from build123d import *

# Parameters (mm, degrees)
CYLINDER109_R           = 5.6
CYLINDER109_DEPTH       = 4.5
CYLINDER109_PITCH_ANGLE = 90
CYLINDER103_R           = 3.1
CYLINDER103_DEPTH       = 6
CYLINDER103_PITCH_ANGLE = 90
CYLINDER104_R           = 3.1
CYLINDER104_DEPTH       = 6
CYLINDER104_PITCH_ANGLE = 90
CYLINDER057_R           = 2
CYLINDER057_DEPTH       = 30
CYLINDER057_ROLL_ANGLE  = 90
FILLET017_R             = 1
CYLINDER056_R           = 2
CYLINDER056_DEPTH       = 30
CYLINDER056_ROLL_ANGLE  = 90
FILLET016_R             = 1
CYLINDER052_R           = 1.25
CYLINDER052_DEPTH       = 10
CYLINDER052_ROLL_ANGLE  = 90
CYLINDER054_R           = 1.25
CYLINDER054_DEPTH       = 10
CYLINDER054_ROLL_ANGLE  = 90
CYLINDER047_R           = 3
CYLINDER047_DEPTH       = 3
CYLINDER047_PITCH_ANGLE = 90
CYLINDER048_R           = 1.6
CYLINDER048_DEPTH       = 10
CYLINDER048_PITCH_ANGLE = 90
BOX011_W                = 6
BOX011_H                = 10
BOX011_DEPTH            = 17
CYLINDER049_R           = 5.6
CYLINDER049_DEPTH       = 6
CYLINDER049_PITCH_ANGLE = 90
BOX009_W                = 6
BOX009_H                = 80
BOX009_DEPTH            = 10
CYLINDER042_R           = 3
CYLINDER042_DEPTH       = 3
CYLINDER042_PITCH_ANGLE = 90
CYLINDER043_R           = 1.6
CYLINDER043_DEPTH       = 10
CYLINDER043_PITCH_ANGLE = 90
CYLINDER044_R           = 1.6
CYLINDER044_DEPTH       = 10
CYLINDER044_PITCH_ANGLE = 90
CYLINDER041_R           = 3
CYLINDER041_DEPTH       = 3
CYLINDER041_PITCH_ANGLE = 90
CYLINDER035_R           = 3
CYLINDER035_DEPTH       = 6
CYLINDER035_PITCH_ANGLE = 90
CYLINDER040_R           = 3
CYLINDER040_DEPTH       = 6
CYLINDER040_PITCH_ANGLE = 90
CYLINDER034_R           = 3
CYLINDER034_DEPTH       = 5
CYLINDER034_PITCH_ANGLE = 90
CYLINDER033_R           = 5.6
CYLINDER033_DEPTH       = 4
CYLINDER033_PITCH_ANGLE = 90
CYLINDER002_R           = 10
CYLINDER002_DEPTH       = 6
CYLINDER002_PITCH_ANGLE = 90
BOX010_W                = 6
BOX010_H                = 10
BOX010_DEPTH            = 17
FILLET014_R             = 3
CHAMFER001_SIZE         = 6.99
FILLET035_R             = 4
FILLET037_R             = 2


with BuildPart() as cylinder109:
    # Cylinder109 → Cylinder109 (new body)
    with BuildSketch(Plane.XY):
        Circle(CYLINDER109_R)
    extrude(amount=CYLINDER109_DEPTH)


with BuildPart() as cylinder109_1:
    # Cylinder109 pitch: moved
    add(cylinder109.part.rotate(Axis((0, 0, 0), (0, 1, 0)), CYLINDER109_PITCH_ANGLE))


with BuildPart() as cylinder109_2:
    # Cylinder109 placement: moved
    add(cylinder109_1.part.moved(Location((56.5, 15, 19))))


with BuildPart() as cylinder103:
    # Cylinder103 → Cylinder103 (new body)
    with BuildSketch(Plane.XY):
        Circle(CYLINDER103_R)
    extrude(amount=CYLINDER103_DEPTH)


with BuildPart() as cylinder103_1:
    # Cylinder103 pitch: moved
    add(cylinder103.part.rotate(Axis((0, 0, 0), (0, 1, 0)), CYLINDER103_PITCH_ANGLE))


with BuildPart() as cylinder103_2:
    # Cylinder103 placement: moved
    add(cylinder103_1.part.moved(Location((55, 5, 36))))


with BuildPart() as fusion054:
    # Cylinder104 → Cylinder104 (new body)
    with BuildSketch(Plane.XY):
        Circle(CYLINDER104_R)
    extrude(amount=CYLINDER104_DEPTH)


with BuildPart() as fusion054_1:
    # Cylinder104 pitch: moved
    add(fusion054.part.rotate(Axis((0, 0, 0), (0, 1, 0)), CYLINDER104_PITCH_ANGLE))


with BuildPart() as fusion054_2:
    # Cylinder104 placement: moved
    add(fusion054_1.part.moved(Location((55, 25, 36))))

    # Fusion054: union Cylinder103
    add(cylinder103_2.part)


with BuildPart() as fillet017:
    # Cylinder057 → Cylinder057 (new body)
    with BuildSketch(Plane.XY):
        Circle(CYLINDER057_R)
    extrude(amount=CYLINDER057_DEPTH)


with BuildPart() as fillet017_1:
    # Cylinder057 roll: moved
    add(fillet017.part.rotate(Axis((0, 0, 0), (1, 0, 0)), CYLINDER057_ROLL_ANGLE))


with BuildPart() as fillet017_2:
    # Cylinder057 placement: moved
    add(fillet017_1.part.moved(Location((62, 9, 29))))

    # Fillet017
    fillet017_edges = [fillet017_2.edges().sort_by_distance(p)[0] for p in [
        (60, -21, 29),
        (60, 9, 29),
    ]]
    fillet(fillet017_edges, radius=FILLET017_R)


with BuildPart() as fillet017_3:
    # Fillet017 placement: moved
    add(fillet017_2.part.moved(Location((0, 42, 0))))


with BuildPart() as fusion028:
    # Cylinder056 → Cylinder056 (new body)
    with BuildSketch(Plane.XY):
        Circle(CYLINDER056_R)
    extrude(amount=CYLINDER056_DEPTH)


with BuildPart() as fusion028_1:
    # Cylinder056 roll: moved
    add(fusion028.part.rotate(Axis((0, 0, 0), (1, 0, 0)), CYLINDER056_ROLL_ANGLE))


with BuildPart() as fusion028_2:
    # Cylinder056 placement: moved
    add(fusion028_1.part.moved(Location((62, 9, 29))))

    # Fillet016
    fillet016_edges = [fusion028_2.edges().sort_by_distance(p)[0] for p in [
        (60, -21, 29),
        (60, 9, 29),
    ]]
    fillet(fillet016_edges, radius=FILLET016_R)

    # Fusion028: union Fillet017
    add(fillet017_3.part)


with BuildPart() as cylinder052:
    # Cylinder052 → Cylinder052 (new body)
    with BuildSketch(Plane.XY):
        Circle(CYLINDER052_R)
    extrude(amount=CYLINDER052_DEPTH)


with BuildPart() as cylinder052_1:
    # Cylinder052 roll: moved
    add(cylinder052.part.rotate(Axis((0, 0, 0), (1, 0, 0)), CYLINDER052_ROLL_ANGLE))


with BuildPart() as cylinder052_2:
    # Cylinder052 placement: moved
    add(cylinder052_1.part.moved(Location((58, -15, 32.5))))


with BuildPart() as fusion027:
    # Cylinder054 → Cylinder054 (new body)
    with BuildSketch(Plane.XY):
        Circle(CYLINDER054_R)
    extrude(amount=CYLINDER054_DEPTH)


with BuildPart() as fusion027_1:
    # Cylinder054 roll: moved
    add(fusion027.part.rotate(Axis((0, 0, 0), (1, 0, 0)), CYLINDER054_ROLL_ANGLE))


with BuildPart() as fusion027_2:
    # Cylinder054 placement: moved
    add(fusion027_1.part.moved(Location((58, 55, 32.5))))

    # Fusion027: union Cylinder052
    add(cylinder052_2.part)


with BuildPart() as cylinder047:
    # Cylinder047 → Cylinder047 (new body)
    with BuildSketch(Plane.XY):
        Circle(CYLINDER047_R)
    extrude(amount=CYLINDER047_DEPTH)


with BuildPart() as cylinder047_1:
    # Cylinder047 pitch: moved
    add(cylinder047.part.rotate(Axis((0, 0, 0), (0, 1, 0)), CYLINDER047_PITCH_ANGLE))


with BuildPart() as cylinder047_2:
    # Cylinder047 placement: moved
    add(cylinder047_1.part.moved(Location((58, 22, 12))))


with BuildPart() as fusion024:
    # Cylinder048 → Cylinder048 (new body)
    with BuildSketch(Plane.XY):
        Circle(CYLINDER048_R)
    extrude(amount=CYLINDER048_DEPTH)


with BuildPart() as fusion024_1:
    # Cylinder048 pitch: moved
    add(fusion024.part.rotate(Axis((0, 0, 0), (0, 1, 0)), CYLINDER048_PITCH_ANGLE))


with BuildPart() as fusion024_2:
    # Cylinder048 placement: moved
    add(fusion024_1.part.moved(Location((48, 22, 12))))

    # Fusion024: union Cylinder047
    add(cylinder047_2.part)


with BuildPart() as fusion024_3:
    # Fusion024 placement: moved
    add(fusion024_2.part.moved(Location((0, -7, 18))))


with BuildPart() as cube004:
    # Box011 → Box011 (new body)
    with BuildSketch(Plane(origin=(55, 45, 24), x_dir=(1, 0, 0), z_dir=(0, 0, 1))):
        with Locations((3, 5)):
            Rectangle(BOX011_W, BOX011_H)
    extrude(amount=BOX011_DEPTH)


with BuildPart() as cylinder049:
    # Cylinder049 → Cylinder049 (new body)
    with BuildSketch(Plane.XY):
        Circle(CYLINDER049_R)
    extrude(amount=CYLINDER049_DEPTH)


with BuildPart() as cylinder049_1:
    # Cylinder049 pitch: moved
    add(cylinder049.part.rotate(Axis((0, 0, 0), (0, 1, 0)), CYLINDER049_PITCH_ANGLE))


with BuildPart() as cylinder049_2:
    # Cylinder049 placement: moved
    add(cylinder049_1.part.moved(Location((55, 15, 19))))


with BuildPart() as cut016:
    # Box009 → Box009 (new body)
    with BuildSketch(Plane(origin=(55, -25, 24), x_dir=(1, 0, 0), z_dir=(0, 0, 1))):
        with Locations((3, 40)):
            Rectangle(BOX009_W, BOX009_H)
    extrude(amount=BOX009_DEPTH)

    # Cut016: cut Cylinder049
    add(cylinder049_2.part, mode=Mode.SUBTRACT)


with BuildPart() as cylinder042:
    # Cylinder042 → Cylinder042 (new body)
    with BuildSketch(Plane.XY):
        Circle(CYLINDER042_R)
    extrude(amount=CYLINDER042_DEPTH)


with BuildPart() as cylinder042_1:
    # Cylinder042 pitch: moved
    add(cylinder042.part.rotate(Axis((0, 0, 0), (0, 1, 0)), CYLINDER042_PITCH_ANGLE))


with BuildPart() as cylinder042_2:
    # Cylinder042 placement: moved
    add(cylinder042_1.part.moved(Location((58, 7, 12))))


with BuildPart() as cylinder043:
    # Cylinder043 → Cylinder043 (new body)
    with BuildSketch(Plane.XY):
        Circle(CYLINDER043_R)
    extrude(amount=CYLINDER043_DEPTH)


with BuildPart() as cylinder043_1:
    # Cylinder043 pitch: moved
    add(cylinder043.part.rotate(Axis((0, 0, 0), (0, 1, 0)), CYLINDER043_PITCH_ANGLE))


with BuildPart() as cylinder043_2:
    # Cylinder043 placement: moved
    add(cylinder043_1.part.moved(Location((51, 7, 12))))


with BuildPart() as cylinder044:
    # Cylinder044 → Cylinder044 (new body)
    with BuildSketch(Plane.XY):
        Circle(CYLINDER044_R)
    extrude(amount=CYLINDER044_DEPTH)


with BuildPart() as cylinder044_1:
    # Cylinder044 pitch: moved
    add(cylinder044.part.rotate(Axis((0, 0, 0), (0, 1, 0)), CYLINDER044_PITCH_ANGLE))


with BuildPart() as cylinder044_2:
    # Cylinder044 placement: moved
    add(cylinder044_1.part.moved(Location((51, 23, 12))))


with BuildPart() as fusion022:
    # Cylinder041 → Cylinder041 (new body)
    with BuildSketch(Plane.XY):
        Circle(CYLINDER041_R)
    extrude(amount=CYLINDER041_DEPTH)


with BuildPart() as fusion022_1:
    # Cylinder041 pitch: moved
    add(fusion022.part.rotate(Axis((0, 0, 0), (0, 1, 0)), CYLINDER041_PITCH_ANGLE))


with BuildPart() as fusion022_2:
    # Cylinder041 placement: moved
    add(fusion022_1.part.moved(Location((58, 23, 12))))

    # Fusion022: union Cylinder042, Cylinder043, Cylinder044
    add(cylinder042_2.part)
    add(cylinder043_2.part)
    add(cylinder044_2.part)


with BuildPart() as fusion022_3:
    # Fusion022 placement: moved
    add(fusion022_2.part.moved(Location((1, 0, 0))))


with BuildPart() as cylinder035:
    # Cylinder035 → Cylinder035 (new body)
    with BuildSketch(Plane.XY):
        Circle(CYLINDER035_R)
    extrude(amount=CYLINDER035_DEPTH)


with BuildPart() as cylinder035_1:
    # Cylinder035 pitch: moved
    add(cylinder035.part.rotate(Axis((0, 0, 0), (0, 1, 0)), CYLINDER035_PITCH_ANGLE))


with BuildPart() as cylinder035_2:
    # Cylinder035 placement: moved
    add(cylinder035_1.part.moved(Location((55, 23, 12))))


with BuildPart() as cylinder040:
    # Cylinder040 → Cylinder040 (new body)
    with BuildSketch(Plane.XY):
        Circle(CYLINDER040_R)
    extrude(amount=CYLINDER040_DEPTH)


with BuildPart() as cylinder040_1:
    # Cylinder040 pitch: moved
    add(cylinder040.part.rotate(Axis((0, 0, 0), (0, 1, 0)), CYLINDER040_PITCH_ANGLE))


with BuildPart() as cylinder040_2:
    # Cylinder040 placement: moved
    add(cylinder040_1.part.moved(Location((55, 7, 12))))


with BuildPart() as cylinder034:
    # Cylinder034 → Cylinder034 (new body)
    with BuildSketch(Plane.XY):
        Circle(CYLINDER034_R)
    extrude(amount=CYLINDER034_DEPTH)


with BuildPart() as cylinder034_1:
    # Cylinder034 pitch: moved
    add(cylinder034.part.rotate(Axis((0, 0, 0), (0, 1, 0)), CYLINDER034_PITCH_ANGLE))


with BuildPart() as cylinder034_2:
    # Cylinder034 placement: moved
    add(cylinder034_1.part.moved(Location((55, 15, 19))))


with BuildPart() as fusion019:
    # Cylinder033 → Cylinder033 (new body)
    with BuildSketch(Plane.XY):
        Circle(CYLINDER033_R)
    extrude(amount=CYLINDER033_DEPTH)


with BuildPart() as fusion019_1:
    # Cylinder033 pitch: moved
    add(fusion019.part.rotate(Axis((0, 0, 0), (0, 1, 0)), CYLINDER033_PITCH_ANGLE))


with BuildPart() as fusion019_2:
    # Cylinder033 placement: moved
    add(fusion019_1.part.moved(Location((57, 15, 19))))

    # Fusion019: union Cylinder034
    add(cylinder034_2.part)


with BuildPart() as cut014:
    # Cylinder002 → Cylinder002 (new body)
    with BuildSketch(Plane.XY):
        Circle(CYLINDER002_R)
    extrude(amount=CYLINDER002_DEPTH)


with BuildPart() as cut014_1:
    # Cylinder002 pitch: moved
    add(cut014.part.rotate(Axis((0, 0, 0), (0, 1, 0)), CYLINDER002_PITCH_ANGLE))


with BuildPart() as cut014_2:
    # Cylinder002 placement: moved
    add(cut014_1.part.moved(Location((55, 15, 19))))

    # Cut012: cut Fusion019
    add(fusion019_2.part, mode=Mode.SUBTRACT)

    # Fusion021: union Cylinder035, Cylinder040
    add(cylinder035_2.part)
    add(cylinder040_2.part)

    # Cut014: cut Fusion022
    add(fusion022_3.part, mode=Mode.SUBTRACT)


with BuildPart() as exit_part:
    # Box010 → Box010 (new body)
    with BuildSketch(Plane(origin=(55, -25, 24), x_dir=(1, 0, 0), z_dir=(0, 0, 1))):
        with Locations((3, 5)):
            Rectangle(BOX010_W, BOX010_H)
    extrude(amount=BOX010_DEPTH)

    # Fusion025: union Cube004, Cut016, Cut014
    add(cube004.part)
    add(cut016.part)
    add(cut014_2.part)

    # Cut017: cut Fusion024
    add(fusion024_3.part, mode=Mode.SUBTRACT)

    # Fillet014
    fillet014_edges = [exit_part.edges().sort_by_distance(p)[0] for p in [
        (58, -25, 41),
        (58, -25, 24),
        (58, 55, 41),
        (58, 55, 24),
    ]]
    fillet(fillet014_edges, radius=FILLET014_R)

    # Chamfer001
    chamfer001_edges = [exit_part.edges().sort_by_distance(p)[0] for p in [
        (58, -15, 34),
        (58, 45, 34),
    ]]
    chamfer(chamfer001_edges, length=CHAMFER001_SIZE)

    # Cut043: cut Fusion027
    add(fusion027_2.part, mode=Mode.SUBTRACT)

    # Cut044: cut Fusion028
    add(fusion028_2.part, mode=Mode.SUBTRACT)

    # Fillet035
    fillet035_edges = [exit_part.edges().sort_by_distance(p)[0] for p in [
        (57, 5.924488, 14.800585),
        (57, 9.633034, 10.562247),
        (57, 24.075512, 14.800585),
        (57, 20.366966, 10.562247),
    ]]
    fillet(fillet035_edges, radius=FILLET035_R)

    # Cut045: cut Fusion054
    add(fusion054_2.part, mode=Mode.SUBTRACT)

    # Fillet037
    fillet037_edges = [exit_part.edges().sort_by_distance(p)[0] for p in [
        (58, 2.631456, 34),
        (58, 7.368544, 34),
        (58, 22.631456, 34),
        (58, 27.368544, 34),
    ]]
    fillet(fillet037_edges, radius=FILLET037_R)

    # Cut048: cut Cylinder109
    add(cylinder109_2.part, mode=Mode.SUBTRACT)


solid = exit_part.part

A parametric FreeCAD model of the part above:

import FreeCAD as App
import Part
import Sketcher

V = App.Vector
Q = App.Units.Quantity


def edges_at(feature, points):
    """Names of the edges that pass closest to the given points."""
    edges = feature.Shape.Edges
    near = lambda p: min(range(len(edges)), key=lambda i: edges[i].distToShape(Part.Vertex(*p))[0])
    return sorted({f"Edge{near(p) + 1}" for p in points})


def add_polygon(sketch, points):
    """Adds a closed chain of lines whose ends are joined by coincident constraints."""
    first, n = sketch.GeometryCount, len(points)
    for a, b in zip(points, points[1:] + points[:1]):
        sketch.addGeometry(Part.LineSegment(App.Vector(*a, 0), App.Vector(*b, 0)), False)
    for i in range(n):
        sketch.addConstraint(Sketcher.Constraint("Coincident", first + i, 2, first + (i + 1) % n, 1))

doc = App.newDocument("Part")
body = doc.addObject("PartDesign::Body", "Body")

# Sketch on XY plane
sketch1 = body.newObject("Sketcher::SketchObject", "Sketch")
sketch1.AttachmentSupport = (doc.getObject("XY_Plane"), [""])
sketch1.MapMode = "FlatFace"
sketch1.addGeometry(Part.Circle(V(0, 0, 0), V(0, 0, 1), 6), False)
sketch1.addConstraint(Sketcher.Constraint("Coincident", 0, 3, -1, 1))
sketch1.addConstraint(Sketcher.Constraint("Diameter", 0, Q("11.2 mm")))
pad1 = body.newObject("PartDesign::Pad", "Pad")
pad1.Profile = sketch1
pad1.Length = 4.5
body2 = doc.addObject("PartDesign::Body", "Body001")
doc.recompute()

body.Placement = App.Placement(V(0, 0, 0), App.Rotation(V(0, 1, 0), 90))
boolean = body2.newObject("PartDesign::Boolean", "Boolean")
boolean.Type = "Fuse"
boolean.addObjects([body])
body3 = doc.addObject("PartDesign::Body", "Body002")
doc.recompute()

body2.Placement = App.Placement(V(56.5, 15, 19), App.Rotation(V(0, 0, 1), 0))
boolean2 = body3.newObject("PartDesign::Boolean", "Boolean001")
boolean2.Type = "Fuse"
boolean2.addObjects([body2])
body4 = doc.addObject("PartDesign::Body", "Body003")

# Sketch on XY plane
sketch2 = body4.newObject("Sketcher::SketchObject", "Sketch001")
sketch2.AttachmentSupport = (doc.getObject("XY_Plane003"), [""])
sketch2.MapMode = "FlatFace"
sketch2.addGeometry(Part.Circle(V(0, 0, 0), V(0, 0, 1), 3.1), False)
sketch2.addConstraint(Sketcher.Constraint("Coincident", 0, 3, -1, 1))
sketch2.addConstraint(Sketcher.Constraint("Diameter", 0, Q("6.2 mm")))
pad2 = body4.newObject("PartDesign::Pad", "Pad001")
pad2.Profile = sketch2
pad2.Length = 6
body5 = doc.addObject("PartDesign::Body", "Body004")
doc.recompute()

body4.Placement = App.Placement(V(0, 0, 0), App.Rotation(V(0, 1, 0), 90))
boolean3 = body5.newObject("PartDesign::Boolean", "Boolean002")
boolean3.Type = "Fuse"
boolean3.addObjects([body4])
body6 = doc.addObject("PartDesign::Body", "Body005")
doc.recompute()

body5.Placement = App.Placement(V(55, 5, 36), App.Rotation(V(0, 0, 1), 0))
boolean4 = body6.newObject("PartDesign::Boolean", "Boolean003")
boolean4.Type = "Fuse"
boolean4.addObjects([body5])
body7 = doc.addObject("PartDesign::Body", "Body006")

# Sketch on XY plane
sketch3 = body7.newObject("Sketcher::SketchObject", "Sketch002")
sketch3.AttachmentSupport = (doc.getObject("XY_Plane006"), [""])
sketch3.MapMode = "FlatFace"
sketch3.addGeometry(Part.Circle(V(0, 0, 0), V(0, 0, 1), 3.1), False)
sketch3.addConstraint(Sketcher.Constraint("Coincident", 0, 3, -1, 1))
sketch3.addConstraint(Sketcher.Constraint("Diameter", 0, Q("6.2 mm")))
pad3 = body7.newObject("PartDesign::Pad", "Pad002")
pad3.Profile = sketch3
pad3.Length = 6
body8 = doc.addObject("PartDesign::Body", "Body007")
doc.recompute()

body7.Placement = App.Placement(V(0, 0, 0), App.Rotation(V(0, 1, 0), 90))
boolean5 = body8.newObject("PartDesign::Boolean", "Boolean004")
boolean5.Type = "Fuse"
boolean5.addObjects([body7])
body9 = doc.addObject("PartDesign::Body", "Body008")
body9.AllowCompound = True
doc.recompute()

body8.Placement = App.Placement(V(55, 25, 36), App.Rotation(V(0, 0, 1), 0))
boolean6 = body9.newObject("PartDesign::Boolean", "Boolean005")
boolean6.Type = "Fuse"
boolean6.addObjects([body8])
doc.recompute()

boolean7 = body9.newObject("PartDesign::Boolean", "Boolean006")
boolean7.Type = "Fuse"
boolean7.addObjects([body6])
body10 = doc.addObject("PartDesign::Body", "Body009")

# Sketch on XY plane
sketch4 = body10.newObject("Sketcher::SketchObject", "Sketch003")
sketch4.AttachmentSupport = (doc.getObject("XY_Plane009"), [""])
sketch4.MapMode = "FlatFace"
sketch4.addGeometry(Part.Circle(V(0, 0, 0), V(0, 0, 1), 2), False)
sketch4.addConstraint(Sketcher.Constraint("Coincident", 0, 3, -1, 1))
sketch4.addConstraint(Sketcher.Constraint("Diameter", 0, Q("4 mm")))
pad4 = body10.newObject("PartDesign::Pad", "Pad003")
pad4.Profile = sketch4
pad4.Length = 30
body11 = doc.addObject("PartDesign::Body", "Body010")
doc.recompute()

body10.Placement = App.Placement(V(0, 0, 0), App.Rotation(V(1, 0, 0), 90))
boolean8 = body11.newObject("PartDesign::Boolean", "Boolean007")
boolean8.Type = "Fuse"
boolean8.addObjects([body10])
body12 = doc.addObject("PartDesign::Body", "Body011")
doc.recompute()

body11.Placement = App.Placement(V(62, 9, 29), App.Rotation(V(0, 0, 1), 0))
boolean9 = body12.newObject("PartDesign::Boolean", "Boolean008")
boolean9.Type = "Fuse"
boolean9.addObjects([body11])
doc.recompute()

fillet = body12.newObject("PartDesign::Fillet", "Fillet")
fillet.Base = (boolean9, edges_at(boolean9, [(60, -21, 29), (60, 9, 29)]))
fillet.Radius = 1
body13 = doc.addObject("PartDesign::Body", "Body012")
doc.recompute()

body12.Placement = App.Placement(V(0, 42, 0), App.Rotation(V(0, 0, 1), 0))
boolean10 = body13.newObject("PartDesign::Boolean", "Boolean009")
boolean10.Type = "Fuse"
boolean10.addObjects([body12])
body14 = doc.addObject("PartDesign::Body", "Body013")

# Sketch on XY plane
sketch5 = body14.newObject("Sketcher::SketchObject", "Sketch004")
sketch5.AttachmentSupport = (doc.getObject("XY_Plane013"), [""])
sketch5.MapMode = "FlatFace"
sketch5.addGeometry(Part.Circle(V(0, 0, 0), V(0, 0, 1), 2), False)
sketch5.addConstraint(Sketcher.Constraint("Coincident", 0, 3, -1, 1))
sketch5.addConstraint(Sketcher.Constraint("Diameter", 0, Q("4 mm")))
pad5 = body14.newObject("PartDesign::Pad", "Pad004")
pad5.Profile = sketch5
pad5.Length = 30
body15 = doc.addObject("PartDesign::Body", "Body014")
doc.recompute()

body14.Placement = App.Placement(V(0, 0, 0), App.Rotation(V(1, 0, 0), 90))
boolean11 = body15.newObject("PartDesign::Boolean", "Boolean010")
boolean11.Type = "Fuse"
boolean11.addObjects([body14])
body16 = doc.addObject("PartDesign::Body", "Body015")
body16.AllowCompound = True
doc.recompute()

body15.Placement = App.Placement(V(62, 9, 29), App.Rotation(V(0, 0, 1), 0))
boolean12 = body16.newObject("PartDesign::Boolean", "Boolean011")
boolean12.Type = "Fuse"
boolean12.addObjects([body15])
doc.recompute()

fillet2 = body16.newObject("PartDesign::Fillet", "Fillet001")
fillet2.Base = (boolean12, edges_at(boolean12, [(60, -21, 29), (60, 9, 29)]))
fillet2.Radius = 1
doc.recompute()

boolean13 = body16.newObject("PartDesign::Boolean", "Boolean012")
boolean13.Type = "Fuse"
boolean13.addObjects([body13])
body17 = doc.addObject("PartDesign::Body", "Body016")

# Sketch on XY plane
sketch6 = body17.newObject("Sketcher::SketchObject", "Sketch005")
sketch6.AttachmentSupport = (doc.getObject("XY_Plane016"), [""])
sketch6.MapMode = "FlatFace"
sketch6.addGeometry(Part.Circle(V(0, 0, 0), V(0, 0, 1), 1.2), False)
sketch6.addConstraint(Sketcher.Constraint("Coincident", 0, 3, -1, 1))
sketch6.addConstraint(Sketcher.Constraint("Diameter", 0, Q("2.5 mm")))
pad6 = body17.newObject("PartDesign::Pad", "Pad005")
pad6.Profile = sketch6
pad6.Length = 10
body18 = doc.addObject("PartDesign::Body", "Body017")
doc.recompute()

body17.Placement = App.Placement(V(0, 0, 0), App.Rotation(V(1, 0, 0), 90))
boolean14 = body18.newObject("PartDesign::Boolean", "Boolean013")
boolean14.Type = "Fuse"
boolean14.addObjects([body17])
body19 = doc.addObject("PartDesign::Body", "Body018")
doc.recompute()

body18.Placement = App.Placement(V(58, -15, 32.5), App.Rotation(V(0, 0, 1), 0))
boolean15 = body19.newObject("PartDesign::Boolean", "Boolean014")
boolean15.Type = "Fuse"
boolean15.addObjects([body18])
body20 = doc.addObject("PartDesign::Body", "Body019")

# Sketch on XY plane
sketch7 = body20.newObject("Sketcher::SketchObject", "Sketch006")
sketch7.AttachmentSupport = (doc.getObject("XY_Plane019"), [""])
sketch7.MapMode = "FlatFace"
sketch7.addGeometry(Part.Circle(V(0, 0, 0), V(0, 0, 1), 1.2), False)
sketch7.addConstraint(Sketcher.Constraint("Coincident", 0, 3, -1, 1))
sketch7.addConstraint(Sketcher.Constraint("Diameter", 0, Q("2.5 mm")))
pad7 = body20.newObject("PartDesign::Pad", "Pad006")
pad7.Profile = sketch7
pad7.Length = 10
body21 = doc.addObject("PartDesign::Body", "Body020")
doc.recompute()

body20.Placement = App.Placement(V(0, 0, 0), App.Rotation(V(1, 0, 0), 90))
boolean16 = body21.newObject("PartDesign::Boolean", "Boolean015")
boolean16.Type = "Fuse"
boolean16.addObjects([body20])
body22 = doc.addObject("PartDesign::Body", "Body021")
body22.AllowCompound = True
doc.recompute()

body21.Placement = App.Placement(V(58, 55, 32.5), App.Rotation(V(0, 0, 1), 0))
boolean17 = body22.newObject("PartDesign::Boolean", "Boolean016")
boolean17.Type = "Fuse"
boolean17.addObjects([body21])
doc.recompute()

boolean18 = body22.newObject("PartDesign::Boolean", "Boolean017")
boolean18.Type = "Fuse"
boolean18.addObjects([body19])
body23 = doc.addObject("PartDesign::Body", "Body022")

# Sketch on XY plane
sketch8 = body23.newObject("Sketcher::SketchObject", "Sketch007")
sketch8.AttachmentSupport = (doc.getObject("XY_Plane022"), [""])
sketch8.MapMode = "FlatFace"
sketch8.addGeometry(Part.Circle(V(0, 0, 0), V(0, 0, 1), 3), False)
sketch8.addConstraint(Sketcher.Constraint("Coincident", 0, 3, -1, 1))
sketch8.addConstraint(Sketcher.Constraint("Diameter", 0, Q("6 mm")))
pad8 = body23.newObject("PartDesign::Pad", "Pad007")
pad8.Profile = sketch8
pad8.Length = 3
body24 = doc.addObject("PartDesign::Body", "Body023")
doc.recompute()

body23.Placement = App.Placement(V(0, 0, 0), App.Rotation(V(0, 1, 0), 90))
boolean19 = body24.newObject("PartDesign::Boolean", "Boolean018")
boolean19.Type = "Fuse"
boolean19.addObjects([body23])
body25 = doc.addObject("PartDesign::Body", "Body024")
doc.recompute()

body24.Placement = App.Placement(V(58, 22, 12), App.Rotation(V(0, 0, 1), 0))
boolean20 = body25.newObject("PartDesign::Boolean", "Boolean019")
boolean20.Type = "Fuse"
boolean20.addObjects([body24])
body26 = doc.addObject("PartDesign::Body", "Body025")

# Sketch on XY plane
sketch9 = body26.newObject("Sketcher::SketchObject", "Sketch008")
sketch9.AttachmentSupport = (doc.getObject("XY_Plane025"), [""])
sketch9.MapMode = "FlatFace"
sketch9.addGeometry(Part.Circle(V(0, 0, 0), V(0, 0, 1), 1.6), False)
sketch9.addConstraint(Sketcher.Constraint("Coincident", 0, 3, -1, 1))
sketch9.addConstraint(Sketcher.Constraint("Diameter", 0, Q("3.2 mm")))
pad9 = body26.newObject("PartDesign::Pad", "Pad008")
pad9.Profile = sketch9
pad9.Length = 10
body27 = doc.addObject("PartDesign::Body", "Body026")
doc.recompute()

body26.Placement = App.Placement(V(0, 0, 0), App.Rotation(V(0, 1, 0), 90))
boolean21 = body27.newObject("PartDesign::Boolean", "Boolean020")
boolean21.Type = "Fuse"
boolean21.addObjects([body26])
body28 = doc.addObject("PartDesign::Body", "Body027")
doc.recompute()

body27.Placement = App.Placement(V(48, 22, 12), App.Rotation(V(0, 0, 1), 0))
boolean22 = body28.newObject("PartDesign::Boolean", "Boolean021")
boolean22.Type = "Fuse"
boolean22.addObjects([body27])
doc.recompute()

boolean23 = body28.newObject("PartDesign::Boolean", "Boolean022")
boolean23.Type = "Fuse"
boolean23.addObjects([body25])
body29 = doc.addObject("PartDesign::Body", "Body028")
doc.recompute()

body28.Placement = App.Placement(V(0, -7, 18), App.Rotation(V(0, 0, 1), 0))
boolean24 = body29.newObject("PartDesign::Boolean", "Boolean023")
boolean24.Type = "Fuse"
boolean24.addObjects([body28])
body30 = doc.addObject("PartDesign::Body", "Body029")

# Sketch on XY plane
sketch10 = body30.newObject("Sketcher::SketchObject", "Sketch009")
sketch10.AttachmentSupport = (doc.getObject("XY_Plane029"), [""])
sketch10.MapMode = "FlatFace"
sketch10.AttachmentOffset = App.Placement(V(0, 0, 24), App.Rotation())
add_polygon(sketch10, [(55, 55), (55, 45), (61, 45), (61, 55)])  # lines 0-3
sketch10.addConstraint(Sketcher.Constraint("Vertical", 0))
sketch10.addConstraint(Sketcher.Constraint("Horizontal", 1))
sketch10.addConstraint(Sketcher.Constraint("Vertical", 2))
sketch10.addConstraint(Sketcher.Constraint("Horizontal", 3))
sketch10.addConstraint(Sketcher.Constraint("DistanceX", 1, 1, 1, 2, Q("6 mm")))
sketch10.addConstraint(Sketcher.Constraint("DistanceY", 0, 2, 0, 1, Q("10 mm")))
sketch10.addConstraint(Sketcher.Constraint("DistanceX", -1, 1, 0, 2, Q("55 mm")))
sketch10.addConstraint(Sketcher.Constraint("DistanceY", -1, 1, 0, 2, Q("45 mm")))
pad10 = body30.newObject("PartDesign::Pad", "Pad009")
pad10.Profile = sketch10
pad10.Length = 17
body31 = doc.addObject("PartDesign::Body", "Body030")

# Sketch on XY plane
sketch11 = body31.newObject("Sketcher::SketchObject", "Sketch010")
sketch11.AttachmentSupport = (doc.getObject("XY_Plane030"), [""])
sketch11.MapMode = "FlatFace"
sketch11.addGeometry(Part.Circle(V(0, 0, 0), V(0, 0, 1), 6), False)
sketch11.addConstraint(Sketcher.Constraint("Coincident", 0, 3, -1, 1))
sketch11.addConstraint(Sketcher.Constraint("Diameter", 0, Q("11.2 mm")))
pad11 = body31.newObject("PartDesign::Pad", "Pad010")
pad11.Profile = sketch11
pad11.Length = 6
body32 = doc.addObject("PartDesign::Body", "Body031")
doc.recompute()

body31.Placement = App.Placement(V(0, 0, 0), App.Rotation(V(0, 1, 0), 90))
boolean25 = body32.newObject("PartDesign::Boolean", "Boolean024")
boolean25.Type = "Fuse"
boolean25.addObjects([body31])
body33 = doc.addObject("PartDesign::Body", "Body032")
doc.recompute()

body32.Placement = App.Placement(V(55, 15, 19), App.Rotation(V(0, 0, 1), 0))
boolean26 = body33.newObject("PartDesign::Boolean", "Boolean025")
boolean26.Type = "Fuse"
boolean26.addObjects([body32])
body34 = doc.addObject("PartDesign::Body", "Body033")

# Sketch on XY plane
sketch12 = body34.newObject("Sketcher::SketchObject", "Sketch011")
sketch12.AttachmentSupport = (doc.getObject("XY_Plane033"), [""])
sketch12.MapMode = "FlatFace"
sketch12.AttachmentOffset = App.Placement(V(0, 0, 24), App.Rotation())
add_polygon(sketch12, [(55, 55), (55, -25), (61, -25), (61, 55)])  # lines 0-3
sketch12.addConstraint(Sketcher.Constraint("Vertical", 0))
sketch12.addConstraint(Sketcher.Constraint("Horizontal", 1))
sketch12.addConstraint(Sketcher.Constraint("Vertical", 2))
sketch12.addConstraint(Sketcher.Constraint("Horizontal", 3))
sketch12.addConstraint(Sketcher.Constraint("DistanceX", 1, 1, 1, 2, Q("6 mm")))
sketch12.addConstraint(Sketcher.Constraint("DistanceY", 0, 2, 0, 1, Q("80 mm")))
sketch12.addConstraint(Sketcher.Constraint("DistanceX", -1, 1, 0, 2, Q("55 mm")))
sketch12.addConstraint(Sketcher.Constraint("DistanceY", 0, 2, -1, 1, Q("25 mm")))
pad12 = body34.newObject("PartDesign::Pad", "Pad011")
pad12.Profile = sketch12
pad12.Length = 10
doc.recompute()

boolean27 = body34.newObject("PartDesign::Boolean", "Boolean026")
boolean27.Type = "Cut"
boolean27.addObjects([body33])
body35 = doc.addObject("PartDesign::Body", "Body034")

# Sketch on XY plane
sketch13 = body35.newObject("Sketcher::SketchObject", "Sketch012")
sketch13.AttachmentSupport = (doc.getObject("XY_Plane034"), [""])
sketch13.MapMode = "FlatFace"
sketch13.addGeometry(Part.Circle(V(0, 0, 0), V(0, 0, 1), 3), False)
sketch13.addConstraint(Sketcher.Constraint("Coincident", 0, 3, -1, 1))
sketch13.addConstraint(Sketcher.Constraint("Diameter", 0, Q("6 mm")))
pad13 = body35.newObject("PartDesign::Pad", "Pad012")
pad13.Profile = sketch13
pad13.Length = 3
body36 = doc.addObject("PartDesign::Body", "Body035")
doc.recompute()

body35.Placement = App.Placement(V(0, 0, 0), App.Rotation(V(0, 1, 0), 90))
boolean28 = body36.newObject("PartDesign::Boolean", "Boolean027")
boolean28.Type = "Fuse"
boolean28.addObjects([body35])
body37 = doc.addObject("PartDesign::Body", "Body036")
doc.recompute()

body36.Placement = App.Placement(V(58, 7, 12), App.Rotation(V(0, 0, 1), 0))
boolean29 = body37.newObject("PartDesign::Boolean", "Boolean028")
boolean29.Type = "Fuse"
boolean29.addObjects([body36])
body38 = doc.addObject("PartDesign::Body", "Body037")

# Sketch on XY plane
sketch14 = body38.newObject("Sketcher::SketchObject", "Sketch013")
sketch14.AttachmentSupport = (doc.getObject("XY_Plane037"), [""])
sketch14.MapMode = "FlatFace"
sketch14.addGeometry(Part.Circle(V(0, 0, 0), V(0, 0, 1), 1.6), False)
sketch14.addConstraint(Sketcher.Constraint("Coincident", 0, 3, -1, 1))
sketch14.addConstraint(Sketcher.Constraint("Diameter", 0, Q("3.2 mm")))
pad14 = body38.newObject("PartDesign::Pad", "Pad013")
pad14.Profile = sketch14
pad14.Length = 10
body39 = doc.addObject("PartDesign::Body", "Body038")
doc.recompute()

body38.Placement = App.Placement(V(0, 0, 0), App.Rotation(V(0, 1, 0), 90))
boolean30 = body39.newObject("PartDesign::Boolean", "Boolean029")
boolean30.Type = "Fuse"
boolean30.addObjects([body38])
body40 = doc.addObject("PartDesign::Body", "Body039")
doc.recompute()

body39.Placement = App.Placement(V(51, 7, 12), App.Rotation(V(0, 0, 1), 0))
boolean31 = body40.newObject("PartDesign::Boolean", "Boolean030")
boolean31.Type = "Fuse"
boolean31.addObjects([body39])
body41 = doc.addObject("PartDesign::Body", "Body040")

# Sketch on XY plane
sketch15 = body41.newObject("Sketcher::SketchObject", "Sketch014")
sketch15.AttachmentSupport = (doc.getObject("XY_Plane040"), [""])
sketch15.MapMode = "FlatFace"
sketch15.addGeometry(Part.Circle(V(0, 0, 0), V(0, 0, 1), 1.6), False)
sketch15.addConstraint(Sketcher.Constraint("Coincident", 0, 3, -1, 1))
sketch15.addConstraint(Sketcher.Constraint("Diameter", 0, Q("3.2 mm")))
pad15 = body41.newObject("PartDesign::Pad", "Pad014")
pad15.Profile = sketch15
pad15.Length = 10
body42 = doc.addObject("PartDesign::Body", "Body041")
doc.recompute()

body41.Placement = App.Placement(V(0, 0, 0), App.Rotation(V(0, 1, 0), 90))
boolean32 = body42.newObject("PartDesign::Boolean", "Boolean031")
boolean32.Type = "Fuse"
boolean32.addObjects([body41])
body43 = doc.addObject("PartDesign::Body", "Body042")
doc.recompute()

body42.Placement = App.Placement(V(51, 23, 12), App.Rotation(V(0, 0, 1), 0))
boolean33 = body43.newObject("PartDesign::Boolean", "Boolean032")
boolean33.Type = "Fuse"
boolean33.addObjects([body42])
body44 = doc.addObject("PartDesign::Body", "Body043")

# Sketch on XY plane
sketch16 = body44.newObject("Sketcher::SketchObject", "Sketch015")
sketch16.AttachmentSupport = (doc.getObject("XY_Plane043"), [""])
sketch16.MapMode = "FlatFace"
sketch16.addGeometry(Part.Circle(V(0, 0, 0), V(0, 0, 1), 3), False)
sketch16.addConstraint(Sketcher.Constraint("Coincident", 0, 3, -1, 1))
sketch16.addConstraint(Sketcher.Constraint("Diameter", 0, Q("6 mm")))
pad16 = body44.newObject("PartDesign::Pad", "Pad015")
pad16.Profile = sketch16
pad16.Length = 3
body45 = doc.addObject("PartDesign::Body", "Body044")
doc.recompute()

body44.Placement = App.Placement(V(0, 0, 0), App.Rotation(V(0, 1, 0), 90))
boolean34 = body45.newObject("PartDesign::Boolean", "Boolean033")
boolean34.Type = "Fuse"
boolean34.addObjects([body44])
body46 = doc.addObject("PartDesign::Body", "Body045")
body46.AllowCompound = True
doc.recompute()

body45.Placement = App.Placement(V(58, 23, 12), App.Rotation(V(0, 0, 1), 0))
boolean35 = body46.newObject("PartDesign::Boolean", "Boolean034")
boolean35.Type = "Fuse"
boolean35.addObjects([body45])
doc.recompute()

boolean36 = body46.newObject("PartDesign::Boolean", "Boolean035")
boolean36.Type = "Fuse"
boolean36.addObjects([body37])
doc.recompute()

boolean37 = body46.newObject("PartDesign::Boolean", "Boolean036")
boolean37.Type = "Fuse"
boolean37.addObjects([body40])
doc.recompute()

boolean38 = body46.newObject("PartDesign::Boolean", "Boolean037")
boolean38.Type = "Fuse"
boolean38.addObjects([body43])
body47 = doc.addObject("PartDesign::Body", "Body046")
body47.AllowCompound = True
doc.recompute()

body46.Placement = App.Placement(V(1, 0, 0), App.Rotation(V(0, 0, 1), 0))
boolean39 = body47.newObject("PartDesign::Boolean", "Boolean038")
boolean39.Type = "Fuse"
boolean39.addObjects([body46])
body48 = doc.addObject("PartDesign::Body", "Body047")

# Sketch on XY plane
sketch17 = body48.newObject("Sketcher::SketchObject", "Sketch016")
sketch17.AttachmentSupport = (doc.getObject("XY_Plane047"), [""])
sketch17.MapMode = "FlatFace"
sketch17.addGeometry(Part.Circle(V(0, 0, 0), V(0, 0, 1), 3), False)
sketch17.addConstraint(Sketcher.Constraint("Coincident", 0, 3, -1, 1))
sketch17.addConstraint(Sketcher.Constraint("Diameter", 0, Q("6 mm")))
pad17 = body48.newObject("PartDesign::Pad", "Pad016")
pad17.Profile = sketch17
pad17.Length = 6
body49 = doc.addObject("PartDesign::Body", "Body048")
doc.recompute()

body48.Placement = App.Placement(V(0, 0, 0), App.Rotation(V(0, 1, 0), 90))
boolean40 = body49.newObject("PartDesign::Boolean", "Boolean039")
boolean40.Type = "Fuse"
boolean40.addObjects([body48])
body50 = doc.addObject("PartDesign::Body", "Body049")
doc.recompute()

body49.Placement = App.Placement(V(55, 23, 12), App.Rotation(V(0, 0, 1), 0))
boolean41 = body50.newObject("PartDesign::Boolean", "Boolean040")
boolean41.Type = "Fuse"
boolean41.addObjects([body49])
body51 = doc.addObject("PartDesign::Body", "Body050")

# Sketch on XY plane
sketch18 = body51.newObject("Sketcher::SketchObject", "Sketch017")
sketch18.AttachmentSupport = (doc.getObject("XY_Plane050"), [""])
sketch18.MapMode = "FlatFace"
sketch18.addGeometry(Part.Circle(V(0, 0, 0), V(0, 0, 1), 3), False)
sketch18.addConstraint(Sketcher.Constraint("Coincident", 0, 3, -1, 1))
sketch18.addConstraint(Sketcher.Constraint("Diameter", 0, Q("6 mm")))
pad18 = body51.newObject("PartDesign::Pad", "Pad017")
pad18.Profile = sketch18
pad18.Length = 6
body52 = doc.addObject("PartDesign::Body", "Body051")
doc.recompute()

body51.Placement = App.Placement(V(0, 0, 0), App.Rotation(V(0, 1, 0), 90))
boolean42 = body52.newObject("PartDesign::Boolean", "Boolean041")
boolean42.Type = "Fuse"
boolean42.addObjects([body51])
body53 = doc.addObject("PartDesign::Body", "Body052")
doc.recompute()

body52.Placement = App.Placement(V(55, 7, 12), App.Rotation(V(0, 0, 1), 0))
boolean43 = body53.newObject("PartDesign::Boolean", "Boolean042")
boolean43.Type = "Fuse"
boolean43.addObjects([body52])
body54 = doc.addObject("PartDesign::Body", "Body053")

# Sketch on XY plane
sketch19 = body54.newObject("Sketcher::SketchObject", "Sketch018")
sketch19.AttachmentSupport = (doc.getObject("XY_Plane053"), [""])
sketch19.MapMode = "FlatFace"
sketch19.addGeometry(Part.Circle(V(0, 0, 0), V(0, 0, 1), 3), False)
sketch19.addConstraint(Sketcher.Constraint("Coincident", 0, 3, -1, 1))
sketch19.addConstraint(Sketcher.Constraint("Diameter", 0, Q("6 mm")))
pad19 = body54.newObject("PartDesign::Pad", "Pad018")
pad19.Profile = sketch19
pad19.Length = 5
body55 = doc.addObject("PartDesign::Body", "Body054")
doc.recompute()

body54.Placement = App.Placement(V(0, 0, 0), App.Rotation(V(0, 1, 0), 90))
boolean44 = body55.newObject("PartDesign::Boolean", "Boolean043")
boolean44.Type = "Fuse"
boolean44.addObjects([body54])
body56 = doc.addObject("PartDesign::Body", "Body055")
doc.recompute()

body55.Placement = App.Placement(V(55, 15, 19), App.Rotation(V(0, 0, 1), 0))
boolean45 = body56.newObject("PartDesign::Boolean", "Boolean044")
boolean45.Type = "Fuse"
boolean45.addObjects([body55])
body57 = doc.addObject("PartDesign::Body", "Body056")

# Sketch on XY plane
sketch20 = body57.newObject("Sketcher::SketchObject", "Sketch019")
sketch20.AttachmentSupport = (doc.getObject("XY_Plane056"), [""])
sketch20.MapMode = "FlatFace"
sketch20.addGeometry(Part.Circle(V(0, 0, 0), V(0, 0, 1), 6), False)
sketch20.addConstraint(Sketcher.Constraint("Coincident", 0, 3, -1, 1))
sketch20.addConstraint(Sketcher.Constraint("Diameter", 0, Q("11.2 mm")))
pad20 = body57.newObject("PartDesign::Pad", "Pad019")
pad20.Profile = sketch20
pad20.Length = 4
body58 = doc.addObject("PartDesign::Body", "Body057")
doc.recompute()

body57.Placement = App.Placement(V(0, 0, 0), App.Rotation(V(0, 1, 0), 90))
boolean46 = body58.newObject("PartDesign::Boolean", "Boolean045")
boolean46.Type = "Fuse"
boolean46.addObjects([body57])
body59 = doc.addObject("PartDesign::Body", "Body058")
doc.recompute()

body58.Placement = App.Placement(V(57, 15, 19), App.Rotation(V(0, 0, 1), 0))
boolean47 = body59.newObject("PartDesign::Boolean", "Boolean046")
boolean47.Type = "Fuse"
boolean47.addObjects([body58])
doc.recompute()

boolean48 = body59.newObject("PartDesign::Boolean", "Boolean047")
boolean48.Type = "Fuse"
boolean48.addObjects([body56])
body60 = doc.addObject("PartDesign::Body", "Body059")

# Sketch on XY plane
sketch21 = body60.newObject("Sketcher::SketchObject", "Sketch020")
sketch21.AttachmentSupport = (doc.getObject("XY_Plane059"), [""])
sketch21.MapMode = "FlatFace"
sketch21.addGeometry(Part.Circle(V(0, 0, 0), V(0, 0, 1), 10), False)
sketch21.addConstraint(Sketcher.Constraint("Coincident", 0, 3, -1, 1))
sketch21.addConstraint(Sketcher.Constraint("Diameter", 0, Q("20 mm")))
pad21 = body60.newObject("PartDesign::Pad", "Pad020")
pad21.Profile = sketch21
pad21.Length = 6
body61 = doc.addObject("PartDesign::Body", "Body060")
doc.recompute()

body60.Placement = App.Placement(V(0, 0, 0), App.Rotation(V(0, 1, 0), 90))
boolean49 = body61.newObject("PartDesign::Boolean", "Boolean048")
boolean49.Type = "Fuse"
boolean49.addObjects([body60])
body62 = doc.addObject("PartDesign::Body", "Body061")
doc.recompute()

body61.Placement = App.Placement(V(55, 15, 19), App.Rotation(V(0, 0, 1), 0))
boolean50 = body62.newObject("PartDesign::Boolean", "Boolean049")
boolean50.Type = "Fuse"
boolean50.addObjects([body61])
doc.recompute()

boolean51 = body62.newObject("PartDesign::Boolean", "Boolean050")
boolean51.Type = "Cut"
boolean51.addObjects([body59])
doc.recompute()

boolean52 = body62.newObject("PartDesign::Boolean", "Boolean051")
boolean52.Type = "Fuse"
boolean52.addObjects([body50])
doc.recompute()

boolean53 = body62.newObject("PartDesign::Boolean", "Boolean052")
boolean53.Type = "Fuse"
boolean53.addObjects([body53])
doc.recompute()

boolean54 = body62.newObject("PartDesign::Boolean", "Boolean053")
boolean54.Type = "Cut"
boolean54.addObjects([body47])
body63 = doc.addObject("PartDesign::Body", "Body062")
body63.AllowCompound = True

# Sketch on XY plane
sketch22 = body63.newObject("Sketcher::SketchObject", "Sketch021")
sketch22.AttachmentSupport = (doc.getObject("XY_Plane062"), [""])
sketch22.MapMode = "FlatFace"
sketch22.AttachmentOffset = App.Placement(V(0, 0, 24), App.Rotation())
add_polygon(sketch22, [(55, -15), (55, -25), (61, -25), (61, -15)])  # lines 0-3
sketch22.addConstraint(Sketcher.Constraint("Vertical", 0))
sketch22.addConstraint(Sketcher.Constraint("Horizontal", 1))
sketch22.addConstraint(Sketcher.Constraint("Vertical", 2))
sketch22.addConstraint(Sketcher.Constraint("Horizontal", 3))
sketch22.addConstraint(Sketcher.Constraint("DistanceX", 1, 1, 1, 2, Q("6 mm")))
sketch22.addConstraint(Sketcher.Constraint("DistanceY", 0, 2, 0, 1, Q("10 mm")))
sketch22.addConstraint(Sketcher.Constraint("DistanceX", -1, 1, 0, 2, Q("55 mm")))
sketch22.addConstraint(Sketcher.Constraint("DistanceY", 0, 2, -1, 1, Q("25 mm")))
pad22 = body63.newObject("PartDesign::Pad", "Pad021")
pad22.Profile = sketch22
pad22.Length = 17
doc.recompute()

boolean55 = body63.newObject("PartDesign::Boolean", "Boolean054")
boolean55.Type = "Fuse"
boolean55.addObjects([body30])
doc.recompute()

boolean56 = body63.newObject("PartDesign::Boolean", "Boolean055")
boolean56.Type = "Fuse"
boolean56.addObjects([body34])
doc.recompute()

boolean57 = body63.newObject("PartDesign::Boolean", "Boolean056")
boolean57.Type = "Fuse"
boolean57.addObjects([body62])
doc.recompute()

boolean58 = body63.newObject("PartDesign::Boolean", "Boolean057")
boolean58.Type = "Cut"
boolean58.addObjects([body29])
doc.recompute()

fillet3 = body63.newObject("PartDesign::Fillet", "Fillet002")
fillet3.Base = (boolean58, edges_at(boolean58, [
    (58, -25, 41),
    (58, -25, 24),
    (58, 55, 41),
    (58, 55, 24),
]))
fillet3.Radius = 3
doc.recompute()

chamfer = body63.newObject("PartDesign::Chamfer", "Chamfer")
chamfer.Base = (fillet3, edges_at(fillet3, [(58, -15, 34), (58, 45, 34)]))
chamfer.Size = 6.99
doc.recompute()

boolean59 = body63.newObject("PartDesign::Boolean", "Boolean058")
boolean59.Type = "Cut"
boolean59.addObjects([body22])
doc.recompute()

boolean60 = body63.newObject("PartDesign::Boolean", "Boolean059")
boolean60.Type = "Cut"
boolean60.addObjects([body16])
doc.recompute()

fillet4 = body63.newObject("PartDesign::Fillet", "Fillet003")
fillet4.Base = (boolean60, edges_at(boolean60, [
    (57, 5.924, 14.801),
    (57, 9.633, 10.562),
    (57, 24.076, 14.801),
    (57, 20.367, 10.562),
]))
fillet4.Radius = 4
doc.recompute()

boolean61 = body63.newObject("PartDesign::Boolean", "Boolean060")
boolean61.Type = "Cut"
boolean61.addObjects([body9])
doc.recompute()

fillet5 = body63.newObject("PartDesign::Fillet", "Fillet004")
fillet5.Base = (boolean61, edges_at(boolean61, [
    (58, 2.631, 34),
    (58, 7.369, 34),
    (58, 22.631, 34),
    (58, 27.369, 34),
]))
fillet5.Radius = 2
doc.recompute()

boolean62 = body63.newObject("PartDesign::Boolean", "Boolean061")
boolean62.Type = "Cut"
boolean62.addObjects([body3])

doc.recompute()
